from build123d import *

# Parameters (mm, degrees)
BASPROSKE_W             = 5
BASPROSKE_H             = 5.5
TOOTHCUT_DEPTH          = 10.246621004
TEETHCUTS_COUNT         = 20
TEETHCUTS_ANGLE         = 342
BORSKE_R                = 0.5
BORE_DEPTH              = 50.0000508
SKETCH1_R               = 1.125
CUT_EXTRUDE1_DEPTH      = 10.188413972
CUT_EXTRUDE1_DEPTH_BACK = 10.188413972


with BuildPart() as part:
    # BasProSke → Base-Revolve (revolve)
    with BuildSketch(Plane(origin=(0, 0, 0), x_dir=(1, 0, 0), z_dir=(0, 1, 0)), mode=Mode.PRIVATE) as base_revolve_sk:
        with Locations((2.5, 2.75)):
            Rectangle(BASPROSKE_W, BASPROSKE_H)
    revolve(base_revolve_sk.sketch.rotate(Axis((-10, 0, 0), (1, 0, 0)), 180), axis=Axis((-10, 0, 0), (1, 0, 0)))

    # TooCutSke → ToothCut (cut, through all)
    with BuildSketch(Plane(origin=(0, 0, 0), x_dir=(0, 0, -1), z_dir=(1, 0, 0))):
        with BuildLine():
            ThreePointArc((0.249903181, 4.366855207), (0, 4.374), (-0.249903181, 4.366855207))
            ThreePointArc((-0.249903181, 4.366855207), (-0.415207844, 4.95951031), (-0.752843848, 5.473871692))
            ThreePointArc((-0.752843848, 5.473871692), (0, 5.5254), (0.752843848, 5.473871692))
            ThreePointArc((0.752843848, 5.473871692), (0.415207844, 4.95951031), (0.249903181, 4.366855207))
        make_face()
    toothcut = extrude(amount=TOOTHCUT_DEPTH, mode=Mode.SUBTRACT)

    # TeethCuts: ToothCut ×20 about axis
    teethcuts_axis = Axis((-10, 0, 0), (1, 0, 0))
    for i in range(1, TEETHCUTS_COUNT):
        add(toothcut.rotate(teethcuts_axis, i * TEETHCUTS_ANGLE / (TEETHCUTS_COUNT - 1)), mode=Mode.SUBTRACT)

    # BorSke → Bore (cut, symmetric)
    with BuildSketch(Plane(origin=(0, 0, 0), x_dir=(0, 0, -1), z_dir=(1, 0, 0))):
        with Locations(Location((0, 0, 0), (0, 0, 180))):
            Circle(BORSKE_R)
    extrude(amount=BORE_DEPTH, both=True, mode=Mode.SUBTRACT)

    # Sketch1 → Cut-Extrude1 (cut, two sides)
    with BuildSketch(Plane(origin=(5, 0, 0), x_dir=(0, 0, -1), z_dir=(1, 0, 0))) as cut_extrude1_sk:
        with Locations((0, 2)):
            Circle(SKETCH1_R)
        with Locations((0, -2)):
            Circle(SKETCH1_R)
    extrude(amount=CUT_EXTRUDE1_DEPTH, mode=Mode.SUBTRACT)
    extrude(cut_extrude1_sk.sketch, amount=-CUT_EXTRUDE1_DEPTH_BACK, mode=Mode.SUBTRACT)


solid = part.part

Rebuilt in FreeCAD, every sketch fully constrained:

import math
import FreeCAD as App
import Part
import Sketcher


def add_polygon(sketch, points):
    """Adds a closed chain of lines whose ends are joined by coincident constraints."""
    first, n = sketch.GeometryCount, len(points)
    for a, b in zip(points, points[1:] + points[:1]):
        sketch.addGeometry(Part.LineSegment(App.Vector(*a, 0), App.Vector(*b, 0)), False)
    for i in range(n):
        sketch.addConstraint(Sketcher.Constraint("Coincident", first + i, 2, first + (i + 1) % n, 1))

doc = App.newDocument("Part")
body = doc.addObject("PartDesign::Body", "Body")

# Sketch on XZ plane
sketch1 = body.newObject("Sketcher::SketchObject", "Sketch")
sketch1.AttachmentSupport = (doc.getObject("XZ_Plane"), [""])
sketch1.MapMode = "FlatFace"
add_polygon(sketch1, [(0, -5.5), (0, 0), (5, 0), (5, -5.5)])  # lines 0-3
sketch1.addConstraint(Sketcher.Constraint("Vertical", 0))
sketch1.addConstraint(Sketcher.Constraint("Horizontal", 1))
sketch1.addConstraint(Sketcher.Constraint("Vertical", 2))
sketch1.addConstraint(Sketcher.Constraint("Horizontal", 3))
sketch1.addConstraint(Sketcher.Constraint("Coincident", 0, 2, -1, 1))
sketch1.addConstraint(Sketcher.Constraint("DistanceX", 1, 1, 1, 2, 5.0))
sketch1.addConstraint(Sketcher.Constraint("DistanceY", 0, 1, 0, 2, 5.5))
revolution = body.newObject("PartDesign::Revolution", "Revolution")
revolution.Profile = sketch1
revolution.ReferenceAxis = (sketch1, ["H_Axis"])
revolution.Angle = 360

# Sketch on YZ plane
sketch2 = body.newObject("Sketcher::SketchObject", "Sketch001")
sketch2.AttachmentSupport = (doc.getObject("YZ_Plane"), [""])
sketch2.MapMode = "FlatFace"
sketch2.addGeometry(Part.ArcOfCircle(Part.Circle(App.Vector(0, 0, 0), App.Vector(0, 0, 1), 4.374), math.radians(-3.275308), math.radians(3.275308)), False)
sketch2.addGeometry(Part.ArcOfCircle(Part.Circle(App.Vector(4.132243, -2.236095, 0), App.Vector(0, 0, 1), 2), math.radians(47.870067), math.radians(83.263356)), False)
sketch2.addGeometry(Part.ArcOfCircle(Part.Circle(App.Vector(0, 0, 0), App.Vector(0, 0, 1), 5.5254), math.radians(-7.830992), math.radians(7.830992)), False)
sketch2.addGeometry(Part.ArcOfCircle(Part.Circle(App.Vector(4.132243, 2.236095, 0), App.Vector(0, 0, 1), 2), math.radians(-83.263356), math.radians(-47.870067)), False)
sketch2.addConstraint(Sketcher.Constraint("Coincident", 0, 1, 1, 2))
sketch2.addConstraint(Sketcher.Constraint("Coincident", 1, 1, 2, 1))
sketch2.addConstraint(Sketcher.Constraint("Coincident", 2, 2, 3, 2))
sketch2.addConstraint(Sketcher.Constraint("Coincident", 3, 1, 0, 2))
sketch2.addConstraint(Sketcher.Constraint("Coincident", 0, 3, -1, 1))
sketch2.addConstraint(Sketcher.Constraint("Coincident", 2, 3, -1, 1))
sketch2.addConstraint(Sketcher.Constraint("Equal", 1, 3))
sketch2.addConstraint(Sketcher.Constraint("Symmetric", 1, 3, 3, 3, -1))
sketch2.addConstraint(Sketcher.Constraint("Radius", 1, 2.0))
sketch2.addConstraint(Sketcher.Constraint("Radius", 0, 4.374))
sketch2.addConstraint(Sketcher.Constraint("Radius", 2, 5.5254))
sketch2.addConstraint(Sketcher.Constraint("DistanceY", 0, 1, 3, 3, 2.485998))
sketch2.addConstraint(Sketcher.Constraint("DistanceX", -1, 1, 1, 1, 5.473872))
pocket1 = body.newObject("PartDesign::Pocket", "Pocket")
pocket1.Profile = sketch2
pocket1.Type = "ThroughAll"
pocket1.Reversed = True
doc.recompute()

polarpattern = body.newObject("PartDesign::PolarPattern", "PolarPattern")
polarpattern.Originals = [pocket1]
polarpattern.Axis = (doc.getObject("X_Axis"), [""])
polarpattern.Angle = 360
polarpattern.Occurrences = 20
body.Tip = polarpattern

# Sketch on YZ plane
sketch3 = body.newObject("Sketcher::SketchObject", "Sketch002")
sketch3.AttachmentSupport = (doc.getObject("YZ_Plane"), [""])
sketch3.MapMode = "FlatFace"
sketch3.addGeometry(Part.Circle(App.Vector(0, 0, 0), App.Vector(0, 0, 1), 0.5), False)
sketch3.addConstraint(Sketcher.Constraint("Coincident", 0, 3, -1, 1))
sketch3.addConstraint(Sketcher.Constraint("Diameter", 0, 1.0))
pocket2 = body.newObject("PartDesign::Pocket", "Pocket001")
pocket2.Profile = sketch3
pocket2.Length = 100.000102
pocket2.Midplane = True

# Sketch on YZ plane
sketch4 = body.newObject("Sketcher::SketchObject", "Sketch003")
sketch4.AttachmentSupport = (doc.getObject("YZ_Plane"), [""])
sketch4.MapMode = "FlatFace"
sketch4.AttachmentOffset = App.Placement(App.Vector(0, 0, 5), App.Rotation())
sketch4.addGeometry(Part.Circle(App.Vector(2, 0, 0), App.Vector(0, 0, 1), 1.125), False)
sketch4.addGeometry(Part.Circle(App.Vector(-2, 0, 0), App.Vector(0, 0, 1), 1.125), False)
sketch4.addConstraint(Sketcher.Constraint("Equal", 0, 1))
sketch4.addConstraint(Sketcher.Constraint("Symmetric", 0, 3, 1, 3, -1, 1))
sketch4.addConstraint(Sketcher.Constraint("PointOnObject", 0, 3, -1))
sketch4.addConstraint(Sketcher.Constraint("Diameter", 0, 2.25))
sketch4.addConstraint(Sketcher.Constraint("DistanceX", -1, 1, 0, 3, 2.0))
pocket3 = body.newObject("PartDesign::Pocket", "Pocket002")
pocket3.Profile = sketch4
pocket3.Type = "ThroughAll"
pocket3.Midplane = True

doc.recompute()
